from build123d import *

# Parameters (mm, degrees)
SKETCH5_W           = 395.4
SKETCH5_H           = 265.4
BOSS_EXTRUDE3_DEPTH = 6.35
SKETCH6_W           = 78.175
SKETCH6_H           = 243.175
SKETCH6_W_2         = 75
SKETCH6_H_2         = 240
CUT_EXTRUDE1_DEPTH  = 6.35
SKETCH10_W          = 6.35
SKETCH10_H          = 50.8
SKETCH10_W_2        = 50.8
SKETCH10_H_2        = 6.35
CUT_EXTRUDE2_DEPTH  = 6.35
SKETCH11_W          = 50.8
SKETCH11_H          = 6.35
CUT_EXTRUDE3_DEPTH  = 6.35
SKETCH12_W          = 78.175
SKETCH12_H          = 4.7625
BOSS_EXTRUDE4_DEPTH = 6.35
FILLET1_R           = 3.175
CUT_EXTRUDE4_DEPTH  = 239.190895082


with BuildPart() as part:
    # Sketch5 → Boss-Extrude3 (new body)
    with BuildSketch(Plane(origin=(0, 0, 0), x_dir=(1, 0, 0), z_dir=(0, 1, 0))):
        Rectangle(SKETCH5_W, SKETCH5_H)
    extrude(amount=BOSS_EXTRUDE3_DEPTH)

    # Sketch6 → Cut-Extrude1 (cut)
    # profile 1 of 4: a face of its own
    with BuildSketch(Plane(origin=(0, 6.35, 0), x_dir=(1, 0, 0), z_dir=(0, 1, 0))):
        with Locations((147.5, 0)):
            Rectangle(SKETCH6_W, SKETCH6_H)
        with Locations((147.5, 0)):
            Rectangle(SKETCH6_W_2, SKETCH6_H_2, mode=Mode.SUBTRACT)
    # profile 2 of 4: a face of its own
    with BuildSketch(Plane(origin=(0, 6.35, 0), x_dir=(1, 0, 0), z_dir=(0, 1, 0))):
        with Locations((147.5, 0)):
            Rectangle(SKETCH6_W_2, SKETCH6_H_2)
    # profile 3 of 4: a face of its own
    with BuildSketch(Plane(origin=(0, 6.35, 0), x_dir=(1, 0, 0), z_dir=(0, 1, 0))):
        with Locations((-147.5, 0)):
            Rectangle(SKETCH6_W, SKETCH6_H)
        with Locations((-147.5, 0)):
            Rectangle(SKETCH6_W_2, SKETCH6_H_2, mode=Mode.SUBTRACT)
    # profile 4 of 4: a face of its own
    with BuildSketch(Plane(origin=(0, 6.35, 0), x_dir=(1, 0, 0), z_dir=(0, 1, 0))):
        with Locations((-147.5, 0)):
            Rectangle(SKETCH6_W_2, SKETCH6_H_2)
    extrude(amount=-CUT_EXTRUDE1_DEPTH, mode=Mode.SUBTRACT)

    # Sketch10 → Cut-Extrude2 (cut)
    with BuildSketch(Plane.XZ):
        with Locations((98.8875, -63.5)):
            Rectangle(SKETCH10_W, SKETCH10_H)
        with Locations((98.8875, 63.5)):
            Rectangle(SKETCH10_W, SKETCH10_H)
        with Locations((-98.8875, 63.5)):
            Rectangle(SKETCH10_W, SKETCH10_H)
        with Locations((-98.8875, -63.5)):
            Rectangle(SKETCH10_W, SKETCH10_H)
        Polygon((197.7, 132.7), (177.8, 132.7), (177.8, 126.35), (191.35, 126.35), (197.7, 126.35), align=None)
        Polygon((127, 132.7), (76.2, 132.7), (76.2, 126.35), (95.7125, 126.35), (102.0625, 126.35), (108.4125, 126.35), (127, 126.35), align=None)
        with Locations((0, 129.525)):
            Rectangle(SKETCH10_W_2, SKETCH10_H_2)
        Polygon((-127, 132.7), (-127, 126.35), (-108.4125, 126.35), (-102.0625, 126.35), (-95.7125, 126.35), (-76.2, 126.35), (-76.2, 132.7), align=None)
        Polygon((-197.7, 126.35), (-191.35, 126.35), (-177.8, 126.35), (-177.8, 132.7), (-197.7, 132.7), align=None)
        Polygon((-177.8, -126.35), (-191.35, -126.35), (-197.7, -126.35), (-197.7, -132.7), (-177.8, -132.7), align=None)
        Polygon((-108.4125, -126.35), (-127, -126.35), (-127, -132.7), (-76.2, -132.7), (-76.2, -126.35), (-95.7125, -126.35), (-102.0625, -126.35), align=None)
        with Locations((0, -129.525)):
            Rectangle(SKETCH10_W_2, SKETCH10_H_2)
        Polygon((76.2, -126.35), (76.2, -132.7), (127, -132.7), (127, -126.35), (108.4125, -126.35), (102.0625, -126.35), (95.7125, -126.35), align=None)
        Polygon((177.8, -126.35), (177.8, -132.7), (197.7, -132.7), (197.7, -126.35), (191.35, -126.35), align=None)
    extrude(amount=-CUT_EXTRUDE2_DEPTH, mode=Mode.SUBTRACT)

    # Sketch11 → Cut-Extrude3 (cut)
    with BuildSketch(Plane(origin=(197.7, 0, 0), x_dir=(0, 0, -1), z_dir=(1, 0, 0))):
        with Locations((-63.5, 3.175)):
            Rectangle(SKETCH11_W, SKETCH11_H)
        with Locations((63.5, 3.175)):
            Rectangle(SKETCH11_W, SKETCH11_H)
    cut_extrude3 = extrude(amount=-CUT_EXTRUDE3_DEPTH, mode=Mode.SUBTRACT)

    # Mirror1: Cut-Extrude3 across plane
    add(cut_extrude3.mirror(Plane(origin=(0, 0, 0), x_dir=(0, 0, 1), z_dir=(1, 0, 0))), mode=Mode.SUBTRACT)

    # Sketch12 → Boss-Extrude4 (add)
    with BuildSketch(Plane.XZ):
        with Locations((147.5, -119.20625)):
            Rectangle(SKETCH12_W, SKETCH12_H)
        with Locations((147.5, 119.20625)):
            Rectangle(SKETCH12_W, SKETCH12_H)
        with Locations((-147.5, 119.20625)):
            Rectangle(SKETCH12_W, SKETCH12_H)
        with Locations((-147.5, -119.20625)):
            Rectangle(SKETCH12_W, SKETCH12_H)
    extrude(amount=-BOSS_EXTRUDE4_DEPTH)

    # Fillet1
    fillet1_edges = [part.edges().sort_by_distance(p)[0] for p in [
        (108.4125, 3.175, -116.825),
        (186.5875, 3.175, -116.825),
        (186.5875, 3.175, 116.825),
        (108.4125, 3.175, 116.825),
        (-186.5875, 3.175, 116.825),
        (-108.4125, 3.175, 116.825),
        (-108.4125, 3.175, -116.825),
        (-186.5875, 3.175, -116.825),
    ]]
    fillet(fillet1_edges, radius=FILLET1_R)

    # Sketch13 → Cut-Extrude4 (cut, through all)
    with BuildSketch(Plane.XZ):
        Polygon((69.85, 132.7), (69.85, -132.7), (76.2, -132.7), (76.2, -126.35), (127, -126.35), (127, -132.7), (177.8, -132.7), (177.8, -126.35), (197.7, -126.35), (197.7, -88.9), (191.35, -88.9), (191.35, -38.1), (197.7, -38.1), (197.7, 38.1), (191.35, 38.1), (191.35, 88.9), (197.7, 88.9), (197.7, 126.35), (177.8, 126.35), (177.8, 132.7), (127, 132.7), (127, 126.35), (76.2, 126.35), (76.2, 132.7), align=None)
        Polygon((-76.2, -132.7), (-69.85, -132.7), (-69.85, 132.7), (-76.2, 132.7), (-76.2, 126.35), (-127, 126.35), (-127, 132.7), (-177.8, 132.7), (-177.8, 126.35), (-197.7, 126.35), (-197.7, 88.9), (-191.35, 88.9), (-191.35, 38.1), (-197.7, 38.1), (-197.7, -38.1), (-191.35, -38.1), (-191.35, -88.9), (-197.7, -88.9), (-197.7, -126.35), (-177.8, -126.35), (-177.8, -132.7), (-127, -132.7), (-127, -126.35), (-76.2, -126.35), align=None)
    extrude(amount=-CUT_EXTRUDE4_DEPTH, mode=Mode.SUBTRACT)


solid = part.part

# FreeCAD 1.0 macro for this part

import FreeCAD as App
import Part
import Sketcher
Q = App.Units.Quantity


def edges_at(feature, points):
    """Names of the edges that pass closest to the given points."""
    edges = feature.Shape.Edges
    near = lambda p: min(range(len(edges)), key=lambda i: edges[i].distToShape(Part.Vertex(*p))[0])
    return sorted({f"Edge{near(p) + 1}" for p in points})


def add_polygon(sketch, points):
    """Adds a closed chain of lines whose ends are joined by coincident constraints."""
    first, n = sketch.GeometryCount, len(points)
    for a, b in zip(points, points[1:] + points[:1]):
        sketch.addGeometry(Part.LineSegment(App.Vector(*a, 0), App.Vector(*b, 0)), False)
    for i in range(n):
        sketch.addConstraint(Sketcher.Constraint("Coincident", first + i, 2, first + (i + 1) % n, 1))

doc = App.newDocument("Part")
body = doc.addObject("PartDesign::Body", "Body")

# Sketch on XZ plane
sketch1 = body.newObject("Sketcher::SketchObject", "Sketch")
sketch1.AttachmentSupport = (doc.getObject("XZ_Plane"), [""])
sketch1.MapMode = "FlatFace"
add_polygon(sketch1, [(-198, -133), (-198, 133), (198, 133), (198, -133)])  # lines 0-3
sketch1.addConstraint([
    Sketcher.Constraint("Vertical", 0),
    Sketcher.Constraint("Horizontal", 1),
    Sketcher.Constraint("Vertical", 2),
    Sketcher.Constraint("Horizontal", 3),
    Sketcher.Constraint("Symmetric", 0, 2, 2, 2, -1, 1),
    Sketcher.Constraint("DistanceX", 1, 1, 1, 2, Q("395.4 mm")),
    Sketcher.Constraint("DistanceY", 0, 1, 0, 2, Q("265.4 mm")),
])
pad1 = body.newObject("PartDesign::Pad", "Pad")
pad1.Profile = sketch1
pad1.Length = Q("0.25 in")
pad1.Reversed = True

# Sketch on XZ plane
sketch2 = body.newObject("Sketcher::SketchObject", "Sketch001")
sketch2.AttachmentSupport = (doc.getObject("XZ_Plane"), [""])
sketch2.MapMode = "FlatFace"
sketch2.AttachmentOffset = App.Placement(App.Vector(0, 0, -0.25 * 25.4), App.Rotation())
add_polygon(sketch2, [(108, -122), (108, 122), (187, 122), (187, -122)])  # lines 0-3
add_polygon(sketch2, [(-187, -122), (-187, 122), (-108, 122), (-108, -122)])  # lines 4-7
sketch2.addConstraint([
    Sketcher.Constraint("Vertical", 0),
    Sketcher.Constraint("Horizontal", 1),
    Sketcher.Constraint("Vertical", 2),
    Sketcher.Constraint("Horizontal", 3),
    Sketcher.Constraint("Vertical", 4),
    Sketcher.Constraint("Horizontal", 5),
    Sketcher.Constraint("Vertical", 6),
    Sketcher.Constraint("Horizontal", 7),
    Sketcher.Constraint("Symmetric", 2, 2, 4, 2, -1, 1),
    Sketcher.Constraint("Symmetric", 0, 2, 6, 2, -1, 1),
    Sketcher.Constraint("Horizontal", 1, 2, 4, 2),
    Sketcher.Constraint("DistanceX", 1, 1, 1, 2, Q("78.175 mm")),
    Sketcher.Constraint("DistanceY", 0, 1, 0, 2, Q("243.175 mm")),
    Sketcher.Constraint("DistanceX", -1, 1, 0, 2, Q("108.4125 mm")),
])
pocket1 = body.newObject("PartDesign::Pocket", "Pocket")
pocket1.Profile = sketch2
pocket1.Length = Q("0.25 in")
pocket1.Reversed = True

# Sketch on XZ plane
sketch3 = body.newObject("Sketcher::SketchObject", "Sketch002")
sketch3.AttachmentSupport = (doc.getObject("XZ_Plane"), [""])
sketch3.MapMode = "FlatFace"
add_polygon(sketch3, [(96, -38), (96, -89), (102, -89), (102, -38)])  # lines 0-3
add_polygon(sketch3, [(96, 89), (96, 38), (102, 38), (102, 89)])  # lines 4-7
add_polygon(sketch3, [(-102, 89), (-102, 38), (-96, 38), (-96, 89)])  # lines 8-11
add_polygon(sketch3, [(-102, -38), (-102, -89), (-96, -89), (-96, -38)])  # lines 12-15
add_polygon(sketch3, [(198, 133), (178, 133), (178, 126), (198, 126)])  # lines 16-19
add_polygon(sketch3, [(127, 133), (76, 133), (76, 126), (127, 126)])  # lines 20-23
add_polygon(sketch3, [(-25, 133), (-25, 126), (25, 126), (25, 133)])  # lines 24-27
add_polygon(sketch3, [(-127, 133), (-127, 126), (-76, 126), (-76, 133)])  # lines 28-31
add_polygon(sketch3, [(-198, 126), (-178, 126), (-178, 133), (-198, 133)])  # lines 32-35
add_polygon(sketch3, [(-178, -126), (-198, -126), (-198, -133), (-178, -133)])  # lines 36-39
add_polygon(sketch3, [(-127, -126), (-127, -133), (-76, -133), (-76, -126)])  # lines 40-43
add_polygon(sketch3, [(-25, -126), (-25, -133), (25, -133), (25, -126)])  # lines 44-47
add_polygon(sketch3, [(76, -126), (76, -133), (127, -133), (127, -126)])  # lines 48-51
add_polygon(sketch3, [(178, -126), (178, -133), (198, -133), (198, -126)])  # lines 52-55
sketch3.addConstraint([
    Sketcher.Constraint("Vertical", 0),
    Sketcher.Constraint("Horizontal", 1),
    Sketcher.Constraint("Vertical", 2),
    Sketcher.Constraint("Horizontal", 3),
    Sketcher.Constraint("Vertical", 4),
    Sketcher.Constraint("Horizontal", 5),
    Sketcher.Constraint("Vertical", 6),
    Sketcher.Constraint("Horizontal", 7),
    Sketcher.Constraint("Vertical", 8),
    Sketcher.Constraint("Horizontal", 9),
    Sketcher.Constraint("Vertical", 10),
    Sketcher.Constraint("Horizontal", 11),
    Sketcher.Constraint("Vertical", 12),
    Sketcher.Constraint("Horizontal", 13),
    Sketcher.Constraint("Vertical", 14),
    Sketcher.Constraint("Horizontal", 15),
    Sketcher.Constraint("Horizontal", 16),
    Sketcher.Constraint("Vertical", 17),
    Sketcher.Constraint("Horizontal", 18),
    Sketcher.Constraint("Vertical", 19),
    Sketcher.Constraint("Horizontal", 20),
    Sketcher.Constraint("Vertical", 21),
    Sketcher.Constraint("Horizontal", 22),
    Sketcher.Constraint("Vertical", 23),
    Sketcher.Constraint("Vertical", 24),
    Sketcher.Constraint("Horizontal", 25),
    Sketcher.Constraint("Vertical", 26),
    Sketcher.Constraint("Horizontal", 27),
    Sketcher.Constraint("Vertical", 28),
    Sketcher.Constraint("Horizontal", 29),
    Sketcher.Constraint("Vertical", 30),
    Sketcher.Constraint("Horizontal", 31),
    Sketcher.Constraint("Horizontal", 32),
    Sketcher.Constraint("Vertical", 33),
    Sketcher.Constraint("Horizontal", 34),
    Sketcher.Constraint("Vertical", 35),
    Sketcher.Constraint("Horizontal", 36),
    Sketcher.Constraint("Vertical", 37),
    Sketcher.Constraint("Horizontal", 38),
    Sketcher.Constraint("Vertical", 39),
    Sketcher.Constraint("Vertical", 40),
    Sketcher.Constraint("Horizontal", 41),
    Sketcher.Constraint("Vertical", 42),
    Sketcher.Constraint("Horizontal", 43),
    Sketcher.Constraint("Vertical", 44),
    Sketcher.Constraint("Horizontal", 45),
    Sketcher.Constraint("Vertical", 46),
    Sketcher.Constraint("Horizontal", 47),
    Sketcher.Constraint("Vertical", 48),
    Sketcher.Constraint("Horizontal", 49),
    Sketcher.Constraint("Vertical", 50),
    Sketcher.Constraint("Horizontal", 51),
    Sketcher.Constraint("Vertical", 52),
    Sketcher.Constraint("Horizontal", 53),
    Sketcher.Constraint("Vertical", 54),
    Sketcher.Constraint("Horizontal", 55),
    Sketcher.Constraint("Symmetric", 2, 2, 8, 2, -1, 1),
    Sketcher.Constraint("Symmetric", 0, 2, 10, 2, -1, 1),
    Sketcher.Constraint("Symmetric", 6, 2, 12, 2, -1, 1),
    Sketcher.Constraint("Symmetric", 4, 2, 14, 2, -1, 1),
    Sketcher.Constraint("Symmetric", 18, 2, 36, 2, -1, 1),
    Sketcher.Constraint("Symmetric", 16, 2, 38, 2, -1, 1),
    Sketcher.Constraint("Symmetric", 23, 2, 40, 2, -1, 1),
    Sketcher.Constraint("Symmetric", 21, 2, 42, 2, -1, 1),
    Sketcher.Constraint("Symmetric", 26, 2, 44, 2, -1, 1),
    Sketcher.Constraint("Symmetric", 24, 2, 46, 2, -1, 1),
    Sketcher.Constraint("Symmetric", 30, 2, 48, 2, -1, 1),
    Sketcher.Constraint("Symmetric", 28, 2, 50, 2, -1, 1),
    Sketcher.Constraint("Symmetric", 33, 2, 52, 2, -1, 1),
    Sketcher.Constraint("Symmetric", 35, 2, 54, 2, -1, 1),
    Sketcher.Constraint("Symmetric", 5, 2, 8, 2, -2),
    Sketcher.Constraint("Symmetric", 7, 2, 10, 2, -2),
    Sketcher.Constraint("Symmetric", 22, 2, 28, 2, -2),
    Sketcher.Constraint("Symmetric", 20, 2, 30, 2, -2),
    Sketcher.Constraint("Symmetric", 17, 2, 32, 2, -2),
    Sketcher.Constraint("Symmetric", 19, 2, 34, 2, -2),
    Sketcher.Constraint("Horizontal", 19, 2, 20, 2),
    Sketcher.Constraint("Horizontal", 18, 2, 21, 2),
    Sketcher.Constraint("Horizontal", 22, 2, 24, 2),
    Sketcher.Constraint("Horizontal", 23, 2, 26, 2),
    Sketcher.Constraint("Vertical", 27, 2, 44, 2),
    Sketcher.Constraint("Equal", 22, 25),
    Sketcher.Constraint("Equal", 51, 0),
    Sketcher.Constraint("Equal", 15, 17),
    Sketcher.Constraint("DistanceX", 20, 2, 20, 1, Q("2 in")),
    Sketcher.Constraint("DistanceX", -1, 1, 16, 2, Q("7 in")),
    Sketcher.Constraint("DistanceX", -1, 1, 20, 2, Q("3 in")),
    Sketcher.Constraint("DistanceY", 3, 2, 4, 2, Q("3 in")),
    Sketcher.Constraint("DistanceX", 1, 1, 1, 2, Q("0.25 in")),
    Sketcher.Constraint("DistanceX", 16, 2, 16, 1, Q("19.9 mm")),
    Sketcher.Constraint("DistanceX", -1, 1, 0, 2, Q("95.7125 mm")),
    Sketcher.Constraint("DistanceY", -1, 1, 16, 2, Q("132.7 mm")),
])
pocket2 = body.newObject("PartDesign::Pocket", "Pocket001")
pocket2.Profile = sketch3
pocket2.Length = Q("0.25 in")

# Sketch on YZ plane
sketch4 = body.newObject("Sketcher::SketchObject", "Sketch003")
sketch4.AttachmentSupport = (doc.getObject("YZ_Plane"), [""])
sketch4.MapMode = "FlatFace"
sketch4.AttachmentOffset = App.Placement(App.Vector(0, 0, 197.7), App.Rotation())
add_polygon(sketch4, [(6, 89), (0, 89), (0, 38), (6, 38)])  # lines 0-3
add_polygon(sketch4, [(6, -38), (0, -38), (0, -89), (6, -89)])  # lines 4-7
sketch4.addConstraint([
    Sketcher.Constraint("Horizontal", 0),
    Sketcher.Constraint("Vertical", 1),
    Sketcher.Constraint("Horizontal", 2),
    Sketcher.Constraint("Vertical", 3),
    Sketcher.Constraint("Horizontal", 4),
    Sketcher.Constraint("Vertical", 5),
    Sketcher.Constraint("Horizontal", 6),
    Sketcher.Constraint("Vertical", 7),
    Sketcher.Constraint("Symmetric", 1, 2, 4, 2, -1, 1),
    Sketcher.Constraint("Symmetric", 0, 2, 5, 2, -1),
    Sketcher.Constraint("Vertical", 3, 2, 6, 2),
    Sketcher.Constraint("DistanceY", 1, 2, 1, 1, Q("2 in")),
    Sketcher.Constraint("DistanceY", 4, 2, 1, 2, Q("3 in")),
    Sketcher.Constraint("DistanceX", 0, 2, 0, 1, Q("0.25 in")),
])
pocket3 = body.newObject("PartDesign::Pocket", "Pocket002")
pocket3.Profile = sketch4
pocket3.Length = Q("0.25 in")
doc.recompute()

mirrored = body.newObject("PartDesign::Mirrored", "Mirrored")
mirrored.Originals = [pocket3]
mirrored.MirrorPlane = (doc.getObject("YZ_Plane"), [""])
body.Tip = mirrored

# Sketch on XZ plane
sketch5 = body.newObject("Sketcher::SketchObject", "Sketch004")
sketch5.AttachmentSupport = (doc.getObject("XZ_Plane"), [""])
sketch5.MapMode = "FlatFace"
add_polygon(sketch5, [(108.4, -116.8), (108.4, -121.6), (186.6, -121.6), (186.6, -116.8)])  # lines 0-3
add_polygon(sketch5, [(108.4, 121.6), (108.4, 116.8), (186.6, 116.8), (186.6, 121.6)])  # lines 4-7
add_polygon(sketch5, [(-186.6, 121.6), (-186.6, 116.8), (-108.4, 116.8), (-108.4, 121.6)])  # lines 8-11
add_polygon(sketch5, [(-186.6, -116.8), (-186.6, -121.6), (-108.4, -121.6), (-108.4, -116.8)])  # lines 12-15
sketch5.addConstraint([
    Sketcher.Constraint("Vertical", 0),
    Sketcher.Constraint("Horizontal", 1),
    Sketcher.Constraint("Vertical", 2),
    Sketcher.Constraint("Horizontal", 3),
    Sketcher.Constraint("Vertical", 4),
    Sketcher.Constraint("Horizontal", 5),
    Sketcher.Constraint("Vertical", 6),
    Sketcher.Constraint("Horizontal", 7),
    Sketcher.Constraint("Vertical", 8),
    Sketcher.Constraint("Horizontal", 9),
    Sketcher.Constraint("Vertical", 10),
    Sketcher.Constraint("Horizontal", 11),
    Sketcher.Constraint("Vertical", 12),
    Sketcher.Constraint("Horizontal", 13),
    Sketcher.Constraint("Vertical", 14),
    Sketcher.Constraint("Horizontal", 15),
    Sketcher.Constraint("Symmetric", 2, 2, 8, 2, -1, 1),
    Sketcher.Constraint("Symmetric", 0, 2, 10, 2, -1, 1),
    Sketcher.Constraint("Symmetric", 6, 2, 12, 2, -1, 1),
    Sketcher.Constraint("Symmetric", 4, 2, 14, 2, -1, 1),
    Sketcher.Constraint("Symmetric", 5, 2, 8, 2, -2),
    Sketcher.Constraint("Symmetric", 7, 2, 10, 2, -2),
    Sketcher.Constraint("DistanceY", 0, 2, 0, 1, Q("0.1875 in")),
    Sketcher.Constraint("DistanceX", 1, 1, 1, 2, Q("78.175 mm")),
    Sketcher.Constraint("DistanceX", -1, 1, 0, 2, Q("108.4125 mm")),
    Sketcher.Constraint("DistanceY", 0, 2, -1, 1, Q("121.5875 mm")),
])
pad2 = body.newObject("PartDesign::Pad", "Pad001")
pad2.Profile = sketch5
pad2.Length = Q("0.25 in")
pad2.Reversed = True
doc.recompute()

fillet = body.newObject("PartDesign::Fillet", "Fillet")
fillet.Base = (pad2, edges_at(pad2, [
    (108.412, 3.175, -116.825),
    (186.588, 3.175, -116.825),
    (186.588, 3.175, 116.825),
    (108.412, 3.175, 116.825),
    (-186.588, 3.175, 116.825),
    (-108.412, 3.175, 116.825),
    (-108.412, 3.175, -116.825),
    (-186.588, 3.175, -116.825),
]))
fillet.Radius = Q("0.125 in")

# Sketch on XZ plane
sketch6 = body.newObject("Sketcher::SketchObject", "Sketch005")
sketch6.AttachmentSupport = (doc.getObject("XZ_Plane"), [""])
sketch6.MapMode = "FlatFace"
add_polygon(sketch6, [(70, 133), (70, -133), (76, -133), (76, -126), (127, -126), (127, -133), (178, -133), (178, -126), (198, -126), (198, -89), (191, -89), (191, -38), (198, -38), (198, 38), (191, 38), (191, 89), (198, 89), (198, 126), (178, 126), (178, 133), (127, 133), (127, 126), (76, 126), (76, 133)])  # lines 0-23
add_polygon(sketch6, [(-76, -133), (-70, -133), (-70, 133), (-76, 133), (-76, 126), (-127, 126), (-127, 133), (-178, 133), (-178, 126), (-198, 126), (-198, 89), (-191, 89), (-191, 38), (-198, 38), (-198, -38), (-191, -38), (-191, -89), (-198, -89), (-198, -126), (-178, -126), (-178, -133), (-127, -133), (-127, -126), (-76, -126)])  # lines 24-47
sketch6.addConstraint([
    Sketcher.Constraint("Vertical", 0),
    Sketcher.Constraint("Horizontal", 1),
    Sketcher.Constraint("Vertical", 2),
    Sketcher.Constraint("Horizontal", 3),
    Sketcher.Constraint("Vertical", 4),
    Sketcher.Constraint("Horizontal", 5),
    Sketcher.Constraint("Vertical", 6),
    Sketcher.Constraint("Horizontal", 7),
    Sketcher.Constraint("Vertical", 8),
    Sketcher.Constraint("Horizontal", 9),
    Sketcher.Constraint("Vertical", 10),
    Sketcher.Constraint("Horizontal", 11),
    Sketcher.Constraint("Vertical", 12),
    Sketcher.Constraint("Horizontal", 13),
    Sketcher.Constraint("Vertical", 14),
    Sketcher.Constraint("Horizontal", 15),
    Sketcher.Constraint("Vertical", 16),
    Sketcher.Constraint("Horizontal", 17),
    Sketcher.Constraint("Vertical", 18),
    Sketcher.Constraint("Horizontal", 19),
    Sketcher.Constraint("Vertical", 20),
    Sketcher.Constraint("Horizontal", 21),
    Sketcher.Constraint("Vertical", 22),
    Sketcher.Constraint("Horizontal", 23),
    Sketcher.Constraint("Horizontal", 24),
    Sketcher.Constraint("Vertical", 25),
    Sketcher.Constraint("Horizontal", 26),
    Sketcher.Constraint("Vertical", 27),
    Sketcher.Constraint("Horizontal", 28),
    Sketcher.Constraint("Vertical", 29),
    Sketcher.Constraint("Horizontal", 30),
    Sketcher.Constraint("Vertical", 31),
    Sketcher.Constraint("Horizontal", 32),
    Sketcher.Constraint("Vertical", 33),
    Sketcher.Constraint("Horizontal", 34),
    Sketcher.Constraint("Vertical", 35),
    Sketcher.Constraint("Horizontal", 36),
    Sketcher.Constraint("Vertical", 37),
    Sketcher.Constraint("Horizontal", 38),
    Sketcher.Constraint("Vertical", 39),
    Sketcher.Constraint("Horizontal", 40),
    Sketcher.Constraint("Vertical", 41),
    Sketcher.Constraint("Horizontal", 42),
    Sketcher.Constraint("Vertical", 43),
    Sketcher.Constraint("Horizontal", 44),
    Sketcher.Constraint("Vertical", 45),
    Sketcher.Constraint("Horizontal", 46),
    Sketcher.Constraint("Vertical", 47),
    Sketcher.Constraint("Symmetric", 23, 2, 24, 2, -1, 1),
    Sketcher.Constraint("Symmetric", 1, 2, 26, 2, -1, 1),
    Sketcher.Constraint("Symmetric", 3, 2, 28, 2, -1, 1),
    Sketcher.Constraint("Symmetric", 5, 2, 30, 2, -1, 1),
    Sketcher.Constraint("Symmetric", 7, 2, 32, 2, -1, 1),
    Sketcher.Constraint("Symmetric", 9, 2, 34, 2, -1, 1),
    Sketcher.Constraint("Symmetric", 11, 2, 36, 2, -1, 1),
    Sketcher.Constraint("Symmetric", 13, 2, 38, 2, -1, 1),
    Sketcher.Constraint("Symmetric", 15, 2, 40, 2, -1, 1),
    Sketcher.Constraint("Symmetric", 17, 2, 42, 2, -1, 1),
    Sketcher.Constraint("Symmetric", 19, 2, 44, 2, -1, 1),
    Sketcher.Constraint("Symmetric", 21, 2, 46, 2, -1, 1),
    Sketcher.Constraint("Symmetric", 22, 2, 26, 2, -2),
    Sketcher.Constraint("Symmetric", 20, 2, 28, 2, -2),
    Sketcher.Constraint("Symmetric", 18, 2, 30, 2, -2),
    Sketcher.Constraint("Symmetric", 16, 2, 32, 2, -2),
    Sketcher.Constraint("Symmetric", 14, 2, 34, 2, -2),
    Sketcher.Constraint("Horizontal", 1, 2, 4, 2),
    Sketcher.Constraint("Horizontal", 3, 2, 6, 2),
    Sketcher.Constraint("Horizontal", 13, 2, 35, 2),
    Sketcher.Constraint("Vertical", 8, 2, 11, 2),
    Sketcher.Constraint("Equal", 3, 5),
    Sketcher.Constraint("Equal", 1, 9),
    Sketcher.Constraint("Equal", 40, 2),
    Sketcher.Constraint("Equal", 46, 10),
    Sketcher.Constraint("DistanceX", 3, 1, 3, 2, Q("2 in")),
    Sketcher.Constraint("DistanceY", 12, 1, 12, 2, Q("3 in")),
    Sketcher.Constraint("DistanceX", -1, 1, 1, 2, Q("3 in")),
    Sketcher.Constraint("DistanceX", 1, 1, 1, 2, Q("0.25 in")),
    Sketcher.Constraint("DistanceX", 7, 1, 7, 2, Q("19.9 mm")),
    Sketcher.Constraint("DistanceY", 0, 2, 0, 1, Q("265.4 mm")),
])
pocket4 = body.newObject("PartDesign::Pocket", "Pocket003")
pocket4.Profile = sketch6
pocket4.Type = "ThroughAll"

doc.recompute()
